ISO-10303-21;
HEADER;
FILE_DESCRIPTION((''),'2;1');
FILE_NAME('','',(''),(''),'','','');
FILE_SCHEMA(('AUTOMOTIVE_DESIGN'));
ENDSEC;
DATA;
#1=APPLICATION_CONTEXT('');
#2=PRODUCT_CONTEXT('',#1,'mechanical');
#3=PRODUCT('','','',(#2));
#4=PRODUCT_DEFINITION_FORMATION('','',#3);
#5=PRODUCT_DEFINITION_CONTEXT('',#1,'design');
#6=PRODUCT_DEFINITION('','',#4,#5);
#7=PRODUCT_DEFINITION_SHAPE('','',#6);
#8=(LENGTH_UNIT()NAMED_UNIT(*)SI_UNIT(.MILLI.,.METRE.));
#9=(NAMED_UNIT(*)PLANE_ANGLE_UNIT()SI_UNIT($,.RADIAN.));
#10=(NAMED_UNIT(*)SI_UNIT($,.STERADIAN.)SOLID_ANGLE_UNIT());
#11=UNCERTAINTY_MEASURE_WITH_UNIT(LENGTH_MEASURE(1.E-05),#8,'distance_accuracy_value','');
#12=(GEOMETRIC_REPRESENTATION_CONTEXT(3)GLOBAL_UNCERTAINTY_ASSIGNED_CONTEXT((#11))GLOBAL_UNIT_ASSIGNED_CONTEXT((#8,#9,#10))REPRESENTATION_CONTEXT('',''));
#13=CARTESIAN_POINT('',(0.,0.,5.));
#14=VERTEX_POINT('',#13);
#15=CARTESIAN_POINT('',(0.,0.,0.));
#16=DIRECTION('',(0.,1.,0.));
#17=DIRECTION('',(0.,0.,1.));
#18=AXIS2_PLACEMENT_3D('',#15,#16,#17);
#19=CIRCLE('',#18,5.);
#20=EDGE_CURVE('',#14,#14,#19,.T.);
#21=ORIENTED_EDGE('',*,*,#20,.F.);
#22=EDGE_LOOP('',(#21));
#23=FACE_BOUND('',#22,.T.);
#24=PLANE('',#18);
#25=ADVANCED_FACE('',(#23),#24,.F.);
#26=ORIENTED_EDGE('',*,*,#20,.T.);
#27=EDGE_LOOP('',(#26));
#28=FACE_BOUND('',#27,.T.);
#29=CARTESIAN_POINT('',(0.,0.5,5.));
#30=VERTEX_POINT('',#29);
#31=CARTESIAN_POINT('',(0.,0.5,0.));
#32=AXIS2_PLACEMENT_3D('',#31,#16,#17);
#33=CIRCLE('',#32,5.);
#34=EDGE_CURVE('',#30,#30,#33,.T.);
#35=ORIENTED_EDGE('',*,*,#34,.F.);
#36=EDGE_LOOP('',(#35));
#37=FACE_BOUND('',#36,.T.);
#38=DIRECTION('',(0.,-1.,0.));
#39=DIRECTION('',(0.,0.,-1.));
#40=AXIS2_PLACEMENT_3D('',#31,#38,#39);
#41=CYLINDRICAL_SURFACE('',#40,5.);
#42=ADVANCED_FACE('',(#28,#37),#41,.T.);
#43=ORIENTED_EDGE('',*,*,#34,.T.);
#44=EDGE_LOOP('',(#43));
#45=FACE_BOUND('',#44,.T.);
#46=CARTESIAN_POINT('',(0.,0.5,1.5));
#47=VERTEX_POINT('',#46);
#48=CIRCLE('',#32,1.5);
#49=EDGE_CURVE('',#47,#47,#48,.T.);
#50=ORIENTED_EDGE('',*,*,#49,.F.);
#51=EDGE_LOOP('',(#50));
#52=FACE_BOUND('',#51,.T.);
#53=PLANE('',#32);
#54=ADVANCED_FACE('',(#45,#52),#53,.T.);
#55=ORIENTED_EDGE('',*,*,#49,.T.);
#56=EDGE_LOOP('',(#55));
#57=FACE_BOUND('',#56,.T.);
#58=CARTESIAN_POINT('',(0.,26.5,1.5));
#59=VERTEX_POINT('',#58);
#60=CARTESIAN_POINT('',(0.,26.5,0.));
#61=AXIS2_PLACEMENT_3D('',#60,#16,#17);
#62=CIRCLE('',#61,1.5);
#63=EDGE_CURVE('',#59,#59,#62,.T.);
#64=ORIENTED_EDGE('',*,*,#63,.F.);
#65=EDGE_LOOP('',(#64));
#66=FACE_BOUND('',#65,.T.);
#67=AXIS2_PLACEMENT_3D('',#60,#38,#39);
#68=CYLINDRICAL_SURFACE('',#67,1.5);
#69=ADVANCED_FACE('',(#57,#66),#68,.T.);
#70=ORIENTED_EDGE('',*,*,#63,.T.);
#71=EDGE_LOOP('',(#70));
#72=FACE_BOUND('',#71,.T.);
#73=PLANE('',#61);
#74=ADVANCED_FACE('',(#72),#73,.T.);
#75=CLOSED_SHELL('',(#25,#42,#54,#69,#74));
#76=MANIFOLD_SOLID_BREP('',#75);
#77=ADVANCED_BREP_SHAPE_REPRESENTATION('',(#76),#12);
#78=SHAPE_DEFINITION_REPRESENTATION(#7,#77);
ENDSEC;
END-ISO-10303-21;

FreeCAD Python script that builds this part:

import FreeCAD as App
import Part
import Sketcher
from FreeCAD import Vector

doc = App.newDocument("Part")
body = doc.addObject("PartDesign::Body", "Body")

sketch1 = body.newObject("Sketcher::SketchObject", "Sketch")
sketch1.AttachmentSupport = (doc.getObject("XZ_Plane"), [""])
sketch1.MapMode = "FlatFace"
sketch1.addGeometry(Part.Circle(Vector(0, 0, 0), Vector(0, 0, 1), 5), False)
sketch1.addConstraint(Sketcher.Constraint("Coincident", 0, 3, -1, 1))
sketch1.addConstraint(Sketcher.Constraint("Diameter", 0, 10.0))
pad1 = body.newObject("PartDesign::Pad", "Pad")
pad1.Profile = sketch1
pad1.Length = 0.5
pad1.Reversed = True

sketch2 = body.newObject("Sketcher::SketchObject", "Sketch001")
sketch2.AttachmentSupport = (doc.getObject("XZ_Plane"), [""])
sketch2.MapMode = "FlatFace"
sketch2.AttachmentOffset = App.Placement(Vector(0, 0, -0.5), App.Rotation())
sketch2.addGeometry(Part.Circle(Vector(0, 0, 0), Vector(0, 0, 1), 1.5), False)
sketch2.addConstraint(Sketcher.Constraint("Coincident", 0, 3, -1, 1))
sketch2.addConstraint(Sketcher.Constraint("Diameter", 0, 3.0))
pad2 = body.newObject("PartDesign::Pad", "Pad001")
pad2.Profile = sketch2
pad2.Length = 26
pad2.Reversed = True

doc.recompute()
